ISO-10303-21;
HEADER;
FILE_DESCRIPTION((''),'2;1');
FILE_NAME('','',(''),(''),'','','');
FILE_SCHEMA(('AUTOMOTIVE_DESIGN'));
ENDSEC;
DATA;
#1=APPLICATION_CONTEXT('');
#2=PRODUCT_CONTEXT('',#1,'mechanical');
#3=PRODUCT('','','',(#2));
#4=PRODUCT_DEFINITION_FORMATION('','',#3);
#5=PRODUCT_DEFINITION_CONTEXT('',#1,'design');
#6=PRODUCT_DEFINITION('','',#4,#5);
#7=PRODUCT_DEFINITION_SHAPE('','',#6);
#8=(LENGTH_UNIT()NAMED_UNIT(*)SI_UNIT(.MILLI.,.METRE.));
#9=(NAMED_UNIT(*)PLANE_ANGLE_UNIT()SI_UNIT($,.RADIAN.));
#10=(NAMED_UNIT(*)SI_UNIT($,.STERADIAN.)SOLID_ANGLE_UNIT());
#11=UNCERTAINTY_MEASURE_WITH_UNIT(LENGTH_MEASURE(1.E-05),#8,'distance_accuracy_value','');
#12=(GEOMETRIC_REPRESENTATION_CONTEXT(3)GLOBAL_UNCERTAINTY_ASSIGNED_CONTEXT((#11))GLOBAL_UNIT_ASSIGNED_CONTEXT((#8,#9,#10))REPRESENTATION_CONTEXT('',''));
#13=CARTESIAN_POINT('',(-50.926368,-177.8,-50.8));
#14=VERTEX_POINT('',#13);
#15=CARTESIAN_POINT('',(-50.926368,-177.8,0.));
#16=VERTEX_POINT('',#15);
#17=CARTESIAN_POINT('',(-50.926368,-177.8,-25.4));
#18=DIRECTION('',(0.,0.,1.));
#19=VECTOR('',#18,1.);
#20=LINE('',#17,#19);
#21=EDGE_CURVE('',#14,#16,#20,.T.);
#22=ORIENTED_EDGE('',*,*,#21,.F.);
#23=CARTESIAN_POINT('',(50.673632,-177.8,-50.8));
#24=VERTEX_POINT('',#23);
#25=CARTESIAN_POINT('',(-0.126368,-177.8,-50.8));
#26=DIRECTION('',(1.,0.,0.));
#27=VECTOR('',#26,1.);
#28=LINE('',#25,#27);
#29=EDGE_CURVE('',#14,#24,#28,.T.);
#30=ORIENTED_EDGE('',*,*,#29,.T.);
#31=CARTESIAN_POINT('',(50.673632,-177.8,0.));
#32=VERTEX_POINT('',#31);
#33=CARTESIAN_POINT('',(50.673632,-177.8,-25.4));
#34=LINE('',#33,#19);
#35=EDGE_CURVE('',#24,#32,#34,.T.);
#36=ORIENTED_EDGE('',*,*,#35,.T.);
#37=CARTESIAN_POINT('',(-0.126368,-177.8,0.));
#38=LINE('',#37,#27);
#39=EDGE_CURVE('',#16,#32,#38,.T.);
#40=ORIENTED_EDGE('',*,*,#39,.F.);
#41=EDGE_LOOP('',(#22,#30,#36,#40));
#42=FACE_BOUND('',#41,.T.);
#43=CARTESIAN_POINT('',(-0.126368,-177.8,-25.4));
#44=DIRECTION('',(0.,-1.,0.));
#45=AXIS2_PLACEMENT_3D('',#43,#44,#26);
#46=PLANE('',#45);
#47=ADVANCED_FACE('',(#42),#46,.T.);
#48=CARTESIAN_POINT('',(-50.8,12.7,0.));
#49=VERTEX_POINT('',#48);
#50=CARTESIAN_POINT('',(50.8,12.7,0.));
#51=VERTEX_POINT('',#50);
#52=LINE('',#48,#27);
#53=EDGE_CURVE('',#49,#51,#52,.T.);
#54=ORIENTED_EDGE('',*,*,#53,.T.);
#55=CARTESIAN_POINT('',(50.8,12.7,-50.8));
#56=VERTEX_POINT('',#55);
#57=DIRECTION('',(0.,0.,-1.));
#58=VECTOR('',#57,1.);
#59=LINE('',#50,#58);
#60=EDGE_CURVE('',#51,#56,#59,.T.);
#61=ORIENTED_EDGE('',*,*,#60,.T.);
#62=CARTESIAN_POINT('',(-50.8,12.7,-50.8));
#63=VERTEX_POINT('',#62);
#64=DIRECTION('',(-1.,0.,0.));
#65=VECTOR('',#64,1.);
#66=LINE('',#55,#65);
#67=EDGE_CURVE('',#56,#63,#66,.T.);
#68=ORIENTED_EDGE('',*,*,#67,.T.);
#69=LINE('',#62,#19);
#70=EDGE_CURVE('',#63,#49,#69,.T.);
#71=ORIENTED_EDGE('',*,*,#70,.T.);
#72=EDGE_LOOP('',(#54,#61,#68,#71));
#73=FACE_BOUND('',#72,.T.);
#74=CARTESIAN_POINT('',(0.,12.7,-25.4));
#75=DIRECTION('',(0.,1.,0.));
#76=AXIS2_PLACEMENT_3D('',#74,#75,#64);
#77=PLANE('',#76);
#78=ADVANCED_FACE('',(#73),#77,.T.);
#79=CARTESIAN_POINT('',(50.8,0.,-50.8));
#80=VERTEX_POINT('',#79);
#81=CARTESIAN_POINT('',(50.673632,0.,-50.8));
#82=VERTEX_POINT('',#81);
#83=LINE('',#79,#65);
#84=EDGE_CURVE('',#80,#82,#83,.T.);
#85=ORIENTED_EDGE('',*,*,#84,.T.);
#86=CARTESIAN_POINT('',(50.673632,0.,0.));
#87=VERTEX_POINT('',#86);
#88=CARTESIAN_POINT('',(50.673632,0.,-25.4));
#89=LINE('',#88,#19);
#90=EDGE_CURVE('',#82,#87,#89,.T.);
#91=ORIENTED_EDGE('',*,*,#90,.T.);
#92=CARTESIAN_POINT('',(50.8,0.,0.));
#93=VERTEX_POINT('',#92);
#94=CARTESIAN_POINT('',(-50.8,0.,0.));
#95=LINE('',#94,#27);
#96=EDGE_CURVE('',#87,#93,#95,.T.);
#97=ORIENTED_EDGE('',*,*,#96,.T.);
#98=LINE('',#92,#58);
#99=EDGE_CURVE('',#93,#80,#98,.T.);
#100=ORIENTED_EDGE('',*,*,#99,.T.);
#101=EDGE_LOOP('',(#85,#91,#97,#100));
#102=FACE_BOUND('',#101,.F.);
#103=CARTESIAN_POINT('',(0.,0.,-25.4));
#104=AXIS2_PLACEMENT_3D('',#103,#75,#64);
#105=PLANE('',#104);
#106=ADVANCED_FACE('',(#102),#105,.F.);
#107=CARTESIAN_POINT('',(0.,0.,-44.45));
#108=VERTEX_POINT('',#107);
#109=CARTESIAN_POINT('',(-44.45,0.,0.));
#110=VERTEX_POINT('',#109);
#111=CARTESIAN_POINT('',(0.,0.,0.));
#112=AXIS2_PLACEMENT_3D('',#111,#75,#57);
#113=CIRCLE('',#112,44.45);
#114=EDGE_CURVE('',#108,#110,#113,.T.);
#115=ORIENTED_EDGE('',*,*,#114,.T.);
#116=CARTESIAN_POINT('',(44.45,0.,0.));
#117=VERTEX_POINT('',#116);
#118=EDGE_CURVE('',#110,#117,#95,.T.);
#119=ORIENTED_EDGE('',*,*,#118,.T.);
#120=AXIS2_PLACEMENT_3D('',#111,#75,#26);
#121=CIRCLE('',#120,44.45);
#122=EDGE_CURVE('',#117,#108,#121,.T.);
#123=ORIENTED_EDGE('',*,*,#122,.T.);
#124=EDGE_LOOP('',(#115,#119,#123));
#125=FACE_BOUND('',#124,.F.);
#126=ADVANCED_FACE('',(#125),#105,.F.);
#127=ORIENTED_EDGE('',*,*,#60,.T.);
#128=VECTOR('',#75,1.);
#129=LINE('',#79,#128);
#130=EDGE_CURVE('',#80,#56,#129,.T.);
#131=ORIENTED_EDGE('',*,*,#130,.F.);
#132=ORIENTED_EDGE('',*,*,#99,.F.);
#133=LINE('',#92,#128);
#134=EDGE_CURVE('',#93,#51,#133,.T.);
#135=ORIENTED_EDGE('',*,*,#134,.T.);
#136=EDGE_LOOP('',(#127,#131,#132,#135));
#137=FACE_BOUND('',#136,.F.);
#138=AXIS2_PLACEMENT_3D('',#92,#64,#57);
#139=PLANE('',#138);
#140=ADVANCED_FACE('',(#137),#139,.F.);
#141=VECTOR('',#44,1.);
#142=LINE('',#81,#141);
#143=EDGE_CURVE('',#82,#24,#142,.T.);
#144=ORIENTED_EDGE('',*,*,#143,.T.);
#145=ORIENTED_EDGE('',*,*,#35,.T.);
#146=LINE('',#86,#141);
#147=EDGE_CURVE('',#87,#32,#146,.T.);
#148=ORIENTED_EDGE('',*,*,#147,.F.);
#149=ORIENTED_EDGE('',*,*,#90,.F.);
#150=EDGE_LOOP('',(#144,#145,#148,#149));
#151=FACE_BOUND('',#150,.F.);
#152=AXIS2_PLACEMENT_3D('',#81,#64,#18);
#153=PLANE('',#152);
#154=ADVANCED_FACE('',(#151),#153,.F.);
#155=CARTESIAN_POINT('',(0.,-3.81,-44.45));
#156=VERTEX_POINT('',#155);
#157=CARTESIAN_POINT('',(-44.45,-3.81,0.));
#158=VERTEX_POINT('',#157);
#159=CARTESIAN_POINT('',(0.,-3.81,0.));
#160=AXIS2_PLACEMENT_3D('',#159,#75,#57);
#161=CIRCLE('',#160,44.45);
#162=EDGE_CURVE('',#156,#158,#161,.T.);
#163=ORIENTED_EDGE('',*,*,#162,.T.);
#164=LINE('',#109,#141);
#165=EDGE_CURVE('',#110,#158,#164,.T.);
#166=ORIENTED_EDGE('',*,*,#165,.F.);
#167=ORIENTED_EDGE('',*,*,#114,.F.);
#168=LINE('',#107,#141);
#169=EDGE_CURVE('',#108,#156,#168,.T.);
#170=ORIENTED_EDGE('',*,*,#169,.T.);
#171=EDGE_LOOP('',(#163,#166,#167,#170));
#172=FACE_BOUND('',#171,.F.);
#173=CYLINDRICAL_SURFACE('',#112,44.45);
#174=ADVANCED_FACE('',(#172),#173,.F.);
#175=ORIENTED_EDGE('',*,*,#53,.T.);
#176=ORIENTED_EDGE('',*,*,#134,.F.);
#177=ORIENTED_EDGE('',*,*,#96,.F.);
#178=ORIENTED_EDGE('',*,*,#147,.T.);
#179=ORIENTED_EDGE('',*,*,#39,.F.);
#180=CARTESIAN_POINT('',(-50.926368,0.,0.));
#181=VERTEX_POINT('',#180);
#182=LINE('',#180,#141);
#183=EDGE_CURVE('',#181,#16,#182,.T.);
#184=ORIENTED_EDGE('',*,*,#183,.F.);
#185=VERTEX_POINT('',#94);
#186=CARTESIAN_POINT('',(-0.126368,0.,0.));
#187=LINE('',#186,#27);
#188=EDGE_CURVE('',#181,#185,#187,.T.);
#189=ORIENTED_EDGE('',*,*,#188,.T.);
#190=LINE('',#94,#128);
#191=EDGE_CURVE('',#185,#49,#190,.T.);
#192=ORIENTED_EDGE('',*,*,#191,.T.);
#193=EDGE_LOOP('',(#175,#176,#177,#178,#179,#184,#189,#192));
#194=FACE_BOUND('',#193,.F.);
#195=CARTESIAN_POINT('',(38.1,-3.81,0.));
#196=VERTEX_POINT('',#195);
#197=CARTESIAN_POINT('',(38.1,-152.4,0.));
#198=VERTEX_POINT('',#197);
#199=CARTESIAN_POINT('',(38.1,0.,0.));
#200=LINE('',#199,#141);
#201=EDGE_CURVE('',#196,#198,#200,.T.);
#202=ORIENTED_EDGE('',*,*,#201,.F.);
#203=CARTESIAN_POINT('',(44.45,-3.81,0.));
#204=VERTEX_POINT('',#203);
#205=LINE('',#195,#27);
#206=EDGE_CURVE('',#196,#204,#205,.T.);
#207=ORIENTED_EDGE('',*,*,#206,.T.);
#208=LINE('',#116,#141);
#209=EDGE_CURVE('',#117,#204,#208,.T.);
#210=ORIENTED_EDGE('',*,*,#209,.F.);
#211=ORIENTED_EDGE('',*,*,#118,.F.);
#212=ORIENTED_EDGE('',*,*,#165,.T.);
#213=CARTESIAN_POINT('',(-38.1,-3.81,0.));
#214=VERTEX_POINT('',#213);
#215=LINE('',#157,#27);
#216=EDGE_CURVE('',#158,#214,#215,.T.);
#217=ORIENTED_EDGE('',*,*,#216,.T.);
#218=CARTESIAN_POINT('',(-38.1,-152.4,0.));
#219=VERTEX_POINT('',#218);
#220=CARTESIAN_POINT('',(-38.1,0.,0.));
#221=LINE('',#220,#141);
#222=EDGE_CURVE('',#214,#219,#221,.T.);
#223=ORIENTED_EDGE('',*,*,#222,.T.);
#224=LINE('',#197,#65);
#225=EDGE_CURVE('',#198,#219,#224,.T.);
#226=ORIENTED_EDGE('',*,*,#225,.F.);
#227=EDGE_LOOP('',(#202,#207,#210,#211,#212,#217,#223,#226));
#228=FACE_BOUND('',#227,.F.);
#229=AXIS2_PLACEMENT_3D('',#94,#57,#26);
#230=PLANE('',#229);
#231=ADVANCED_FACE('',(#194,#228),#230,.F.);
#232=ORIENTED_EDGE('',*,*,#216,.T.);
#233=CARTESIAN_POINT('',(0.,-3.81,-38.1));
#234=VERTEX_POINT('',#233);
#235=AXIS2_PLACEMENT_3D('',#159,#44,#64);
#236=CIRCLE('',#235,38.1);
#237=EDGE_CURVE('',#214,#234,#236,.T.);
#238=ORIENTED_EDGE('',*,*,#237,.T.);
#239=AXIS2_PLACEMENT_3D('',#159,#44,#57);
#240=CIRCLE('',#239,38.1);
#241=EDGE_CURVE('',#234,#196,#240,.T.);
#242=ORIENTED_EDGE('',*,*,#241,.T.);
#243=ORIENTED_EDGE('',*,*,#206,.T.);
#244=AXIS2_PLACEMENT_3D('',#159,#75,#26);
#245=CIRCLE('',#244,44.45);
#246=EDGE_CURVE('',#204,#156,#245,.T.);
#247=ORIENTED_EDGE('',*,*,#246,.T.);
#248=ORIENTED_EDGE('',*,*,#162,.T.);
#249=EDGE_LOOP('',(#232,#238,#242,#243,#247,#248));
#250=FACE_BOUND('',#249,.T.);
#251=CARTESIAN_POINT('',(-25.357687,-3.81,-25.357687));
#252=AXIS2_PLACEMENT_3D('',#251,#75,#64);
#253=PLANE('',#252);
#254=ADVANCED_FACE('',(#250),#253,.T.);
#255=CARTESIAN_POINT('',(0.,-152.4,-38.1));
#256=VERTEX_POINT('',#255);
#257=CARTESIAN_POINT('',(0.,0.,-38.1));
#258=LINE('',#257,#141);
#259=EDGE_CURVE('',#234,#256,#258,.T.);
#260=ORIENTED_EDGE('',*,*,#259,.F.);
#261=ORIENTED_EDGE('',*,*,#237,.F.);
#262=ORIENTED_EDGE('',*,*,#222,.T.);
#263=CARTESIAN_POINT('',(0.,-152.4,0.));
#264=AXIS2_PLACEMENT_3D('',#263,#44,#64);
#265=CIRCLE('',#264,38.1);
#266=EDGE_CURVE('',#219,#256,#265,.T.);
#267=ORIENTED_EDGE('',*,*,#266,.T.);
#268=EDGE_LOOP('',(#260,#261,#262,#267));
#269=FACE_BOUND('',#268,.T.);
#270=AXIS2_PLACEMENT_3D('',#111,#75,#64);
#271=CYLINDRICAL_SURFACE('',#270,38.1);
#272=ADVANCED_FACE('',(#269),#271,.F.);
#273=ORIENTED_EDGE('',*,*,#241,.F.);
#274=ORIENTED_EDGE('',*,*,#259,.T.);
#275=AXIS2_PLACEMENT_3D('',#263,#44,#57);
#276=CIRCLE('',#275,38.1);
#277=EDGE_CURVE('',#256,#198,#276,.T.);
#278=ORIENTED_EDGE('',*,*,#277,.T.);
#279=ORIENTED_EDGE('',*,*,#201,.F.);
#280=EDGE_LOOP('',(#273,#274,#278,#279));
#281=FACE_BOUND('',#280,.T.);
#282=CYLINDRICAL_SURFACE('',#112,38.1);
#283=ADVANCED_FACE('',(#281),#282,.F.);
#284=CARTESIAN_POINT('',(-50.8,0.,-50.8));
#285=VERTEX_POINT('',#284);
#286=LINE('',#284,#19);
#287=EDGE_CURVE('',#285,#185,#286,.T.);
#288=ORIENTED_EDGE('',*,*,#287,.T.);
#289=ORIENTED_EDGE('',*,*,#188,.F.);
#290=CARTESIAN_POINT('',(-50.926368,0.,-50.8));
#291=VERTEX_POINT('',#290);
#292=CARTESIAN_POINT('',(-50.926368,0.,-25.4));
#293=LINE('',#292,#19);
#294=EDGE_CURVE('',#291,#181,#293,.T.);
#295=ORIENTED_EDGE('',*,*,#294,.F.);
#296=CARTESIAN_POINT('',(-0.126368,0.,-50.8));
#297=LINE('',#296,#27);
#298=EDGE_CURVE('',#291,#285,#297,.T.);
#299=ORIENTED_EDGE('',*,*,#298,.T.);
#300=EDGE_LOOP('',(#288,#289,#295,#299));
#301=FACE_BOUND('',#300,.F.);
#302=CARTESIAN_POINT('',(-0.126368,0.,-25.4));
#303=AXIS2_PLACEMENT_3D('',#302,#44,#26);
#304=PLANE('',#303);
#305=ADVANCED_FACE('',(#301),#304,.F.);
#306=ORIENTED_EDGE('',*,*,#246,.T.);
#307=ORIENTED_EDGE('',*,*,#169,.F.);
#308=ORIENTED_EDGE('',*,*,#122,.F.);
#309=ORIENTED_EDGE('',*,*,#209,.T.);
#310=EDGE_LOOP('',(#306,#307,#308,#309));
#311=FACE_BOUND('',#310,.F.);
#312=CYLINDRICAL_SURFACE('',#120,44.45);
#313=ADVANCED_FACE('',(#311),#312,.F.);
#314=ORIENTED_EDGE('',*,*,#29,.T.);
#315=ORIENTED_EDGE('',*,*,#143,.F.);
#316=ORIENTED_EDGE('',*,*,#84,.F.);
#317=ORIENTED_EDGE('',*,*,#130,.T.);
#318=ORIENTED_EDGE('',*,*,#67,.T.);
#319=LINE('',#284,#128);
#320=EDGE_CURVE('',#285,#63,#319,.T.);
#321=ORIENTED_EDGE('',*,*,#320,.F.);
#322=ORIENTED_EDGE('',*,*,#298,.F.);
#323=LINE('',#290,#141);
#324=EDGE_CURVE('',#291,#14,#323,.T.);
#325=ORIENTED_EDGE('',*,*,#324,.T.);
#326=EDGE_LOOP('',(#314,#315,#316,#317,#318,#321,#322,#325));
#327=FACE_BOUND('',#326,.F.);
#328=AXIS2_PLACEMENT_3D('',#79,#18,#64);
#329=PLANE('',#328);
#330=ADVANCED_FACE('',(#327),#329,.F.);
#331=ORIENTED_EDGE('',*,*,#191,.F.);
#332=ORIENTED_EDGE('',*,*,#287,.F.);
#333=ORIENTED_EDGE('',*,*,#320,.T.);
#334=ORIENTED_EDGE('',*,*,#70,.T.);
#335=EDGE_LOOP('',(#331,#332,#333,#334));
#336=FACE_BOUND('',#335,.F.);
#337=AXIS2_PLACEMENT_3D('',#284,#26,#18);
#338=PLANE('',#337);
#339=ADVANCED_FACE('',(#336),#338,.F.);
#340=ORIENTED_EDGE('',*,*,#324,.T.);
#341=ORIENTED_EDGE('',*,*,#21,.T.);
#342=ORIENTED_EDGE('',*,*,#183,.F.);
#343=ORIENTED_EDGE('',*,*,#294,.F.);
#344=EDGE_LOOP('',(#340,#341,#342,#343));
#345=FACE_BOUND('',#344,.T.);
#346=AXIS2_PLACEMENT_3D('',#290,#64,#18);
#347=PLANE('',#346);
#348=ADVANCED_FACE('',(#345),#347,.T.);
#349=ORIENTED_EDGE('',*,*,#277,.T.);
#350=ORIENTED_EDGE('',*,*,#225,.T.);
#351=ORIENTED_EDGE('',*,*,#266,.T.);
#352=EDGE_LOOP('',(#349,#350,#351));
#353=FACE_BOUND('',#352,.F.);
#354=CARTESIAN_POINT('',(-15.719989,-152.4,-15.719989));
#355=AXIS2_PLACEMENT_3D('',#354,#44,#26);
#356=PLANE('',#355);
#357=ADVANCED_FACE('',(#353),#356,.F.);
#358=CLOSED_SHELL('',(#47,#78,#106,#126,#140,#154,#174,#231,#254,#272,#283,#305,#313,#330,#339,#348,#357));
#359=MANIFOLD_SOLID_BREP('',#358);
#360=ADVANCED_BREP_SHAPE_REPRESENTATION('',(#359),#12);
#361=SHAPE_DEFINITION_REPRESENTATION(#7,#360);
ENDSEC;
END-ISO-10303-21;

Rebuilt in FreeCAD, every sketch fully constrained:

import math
import FreeCAD as App
import Part
import Sketcher
from FreeCAD import Vector
Q = App.Units.Quantity

doc = App.newDocument("Part")
params = doc.addObject("Spreadsheet::Sheet", "Params")
for row, (alias, value) in enumerate([
    ("sketch1_width", "4 in"),
    ("sketch1_height", "2 in"),
    ("pad1_length", "7 in"),
    ("sketch2_radius", "1.5 in"),
    ("pocket1_length", "6 in"),
    ("sketch3_radius", "1.5 in"),
    ("sketch3_radius2", "1.75 in"),
    ("pocket2_length", "0.15 in"),
    ("sketch4_width", "4 in"),
    ("sketch4_height", "2 in"),
    ("pad2_length", "0.5 in"),
], start=1):
    params.set(f"A{row}", alias)
    params.set(f"B{row}", "=" + value)
    params.setAlias(f"B{row}", alias)

body = doc.addObject("PartDesign::Body", "Body")

# Sketch on XZ plane
sketch1 = body.newObject("Sketcher::SketchObject", "Sketch")
sketch1.AttachmentSupport = (doc.getObject("XZ_Plane"), [""])
sketch1.MapMode = "FlatFace"
sketch1.addGeometry(Part.LineSegment(Vector(-51, 0, 0), Vector(-51, -51, 0)), False)
sketch1.addGeometry(Part.LineSegment(Vector(-51, -51, 0), Vector(51, -51, 0)), False)
sketch1.addGeometry(Part.LineSegment(Vector(51, -51, 0), Vector(51, 0, 0)), False)
sketch1.addGeometry(Part.LineSegment(Vector(51, 0, 0), Vector(-51, 0, 0)), False)
sketch1.addConstraint(Sketcher.Constraint("Coincident", 0, 2, 1, 1))
sketch1.addConstraint(Sketcher.Constraint("Coincident", 1, 2, 2, 1))
sketch1.addConstraint(Sketcher.Constraint("Coincident", 2, 2, 3, 1))
sketch1.addConstraint(Sketcher.Constraint("Coincident", 3, 2, 0, 1))
sketch1.addConstraint(Sketcher.Constraint("Vertical", 0))
sketch1.addConstraint(Sketcher.Constraint("Horizontal", 1))
sketch1.addConstraint(Sketcher.Constraint("Vertical", 2))
sketch1.addConstraint(Sketcher.Constraint("Horizontal", 3))
sketch1.addConstraint(Sketcher.Constraint("PointOnObject", 2, 2, -1))
sketch1.addConstraint(Sketcher.Constraint("DistanceX", 1, 1, 1, 2, Q("4 in")))
sketch1.addConstraint(Sketcher.Constraint("DistanceY", 0, 2, 0, 1, Q("2 in")))
sketch1.addConstraint(Sketcher.Constraint("DistanceX", 0, 2, -1, 1, Q("50.926368 mm")))
sketch1.setExpression("Constraints[9]", "Params.sketch1_width")
sketch1.setExpression("Constraints[10]", "Params.sketch1_height")
pad1 = body.newObject("PartDesign::Pad", "Pad")
pad1.Profile = sketch1
pad1.setExpression("Length", "Params.pad1_length")

# Sketch on XZ plane
sketch2 = body.newObject("Sketcher::SketchObject", "Sketch001")
sketch2.AttachmentSupport = (doc.getObject("XZ_Plane"), [""])
sketch2.MapMode = "FlatFace"
sketch2.addGeometry(Part.ArcOfCircle(Part.Circle(Vector(0, 0, 0), Vector(0, 0, 1), 38), math.radians(180), math.radians(270)), False)
sketch2.addGeometry(Part.ArcOfCircle(Part.Circle(Vector(0, 0, 0), Vector(0, 0, 1), 38), math.radians(-90), math.radians(0)), False)
sketch2.addGeometry(Part.LineSegment(Vector(38, 0, 0), Vector(-38, 0, 0)), False)
sketch2.addConstraint(Sketcher.Constraint("Tangent", 0, 2, 1, 1))
sketch2.addConstraint(Sketcher.Constraint("Coincident", 1, 2, 2, 1))
sketch2.addConstraint(Sketcher.Constraint("Coincident", 2, 2, 0, 1))
sketch2.addConstraint(Sketcher.Constraint("Horizontal", 2))
sketch2.addConstraint(Sketcher.Constraint("Coincident", 0, 3, -1, 1))
sketch2.addConstraint(Sketcher.Constraint("Equal", 0, 1))
sketch2.addConstraint(Sketcher.Constraint("PointOnObject", 0, 2, -2))
sketch2.addConstraint(Sketcher.Constraint("PointOnObject", 1, 2, -1))
sketch2.addConstraint(Sketcher.Constraint("Radius", 0, Q("1.5 in")))
sketch2.setExpression("Constraints[8]", "Params.sketch2_radius")
pocket1 = body.newObject("PartDesign::Pocket", "Pocket")
pocket1.Profile = sketch2
pocket1.setExpression("Length", "Params.pocket1_length")
pocket1.Reversed = True

# Sketch on XZ plane
sketch3 = body.newObject("Sketcher::SketchObject", "Sketch002")
sketch3.AttachmentSupport = (doc.getObject("XZ_Plane"), [""])
sketch3.MapMode = "FlatFace"
sketch3.addGeometry(Part.ArcOfCircle(Part.Circle(Vector(0, 0, 0), Vector(0, 0, 1), 44), math.radians(180), math.radians(270)), False)
sketch3.addGeometry(Part.LineSegment(Vector(-44, 0, 0), Vector(-38, 0, 0)), False)
sketch3.addGeometry(Part.ArcOfCircle(Part.Circle(Vector(0, 0, 0), Vector(0, 0, 1), 38), math.radians(180), math.radians(270)), False)
sketch3.addGeometry(Part.ArcOfCircle(Part.Circle(Vector(0, 0, 0), Vector(0, 0, 1), 38), math.radians(-90), math.radians(0)), False)
sketch3.addGeometry(Part.LineSegment(Vector(38, 0, 0), Vector(44, 0, 0)), False)
sketch3.addGeometry(Part.ArcOfCircle(Part.Circle(Vector(0, 0, 0), Vector(0, 0, 1), 44), math.radians(-90), math.radians(0)), False)
sketch3.addConstraint(Sketcher.Constraint("Coincident", 0, 1, 1, 1))
sketch3.addConstraint(Sketcher.Constraint("Coincident", 1, 2, 2, 1))
sketch3.addConstraint(Sketcher.Constraint("Tangent", 2, 2, 3, 1))
sketch3.addConstraint(Sketcher.Constraint("Coincident", 3, 2, 4, 1))
sketch3.addConstraint(Sketcher.Constraint("Coincident", 4, 2, 5, 2))
sketch3.addConstraint(Sketcher.Constraint("Tangent", 5, 1, 0, 2))
sketch3.addConstraint(Sketcher.Constraint("Horizontal", 1))
sketch3.addConstraint(Sketcher.Constraint("Horizontal", 4))
sketch3.addConstraint(Sketcher.Constraint("Coincident", 0, 3, -1, 1))
sketch3.addConstraint(Sketcher.Constraint("Coincident", 2, 3, -1, 1))
sketch3.addConstraint(Sketcher.Constraint("Equal", 2, 3))
sketch3.addConstraint(Sketcher.Constraint("Equal", 0, 5))
sketch3.addConstraint(Sketcher.Constraint("PointOnObject", 0, 1, -1))
sketch3.addConstraint(Sketcher.Constraint("PointOnObject", 2, 2, -2))
sketch3.addConstraint(Sketcher.Constraint("PointOnObject", 3, 2, -1))
sketch3.addConstraint(Sketcher.Constraint("PointOnObject", 5, 1, -2))
sketch3.addConstraint(Sketcher.Constraint("Radius", 2, Q("1.5 in")))
sketch3.addConstraint(Sketcher.Constraint("Radius", 0, Q("1.75 in")))
sketch3.setExpression("Constraints[16]", "Params.sketch3_radius")
sketch3.setExpression("Constraints[17]", "Params.sketch3_radius2")
pocket2 = body.newObject("PartDesign::Pocket", "Pocket001")
pocket2.Profile = sketch3
pocket2.setExpression("Length", "Params.pocket2_length")
pocket2.Reversed = True

# Sketch on XZ plane
sketch4 = body.newObject("Sketcher::SketchObject", "Sketch003")
sketch4.AttachmentSupport = (doc.getObject("XZ_Plane"), [""])
sketch4.MapMode = "FlatFace"
sketch4.addGeometry(Part.LineSegment(Vector(-51, 0, 0), Vector(51, 0, 0)), False)
sketch4.addGeometry(Part.LineSegment(Vector(51, 0, 0), Vector(51, -51, 0)), False)
sketch4.addGeometry(Part.LineSegment(Vector(51, -51, 0), Vector(-51, -51, 0)), False)
sketch4.addGeometry(Part.LineSegment(Vector(-51, -51, 0), Vector(-51, 0, 0)), False)
sketch4.addConstraint(Sketcher.Constraint("Coincident", 0, 2, 1, 1))
sketch4.addConstraint(Sketcher.Constraint("Coincident", 1, 2, 2, 1))
sketch4.addConstraint(Sketcher.Constraint("Coincident", 2, 2, 3, 1))
sketch4.addConstraint(Sketcher.Constraint("Coincident", 3, 2, 0, 1))
sketch4.addConstraint(Sketcher.Constraint("Horizontal", 0))
sketch4.addConstraint(Sketcher.Constraint("Vertical", 1))
sketch4.addConstraint(Sketcher.Constraint("Horizontal", 2))
sketch4.addConstraint(Sketcher.Constraint("Vertical", 3))
sketch4.addConstraint(Sketcher.Constraint("Symmetric", 0, 2, 3, 2, -1, 1))
sketch4.addConstraint(Sketcher.Constraint("DistanceX", 0, 1, 0, 2, Q("4 in")))
sketch4.addConstraint(Sketcher.Constraint("DistanceY", 1, 2, 1, 1, Q("2 in")))
sketch4.setExpression("Constraints[9]", "Params.sketch4_width")
sketch4.setExpression("Constraints[10]", "Params.sketch4_height")
pad2 = body.newObject("PartDesign::Pad", "Pad001")
pad2.Profile = sketch4
pad2.setExpression("Length", "Params.pad2_length")
pad2.Reversed = True

doc.recompute()
